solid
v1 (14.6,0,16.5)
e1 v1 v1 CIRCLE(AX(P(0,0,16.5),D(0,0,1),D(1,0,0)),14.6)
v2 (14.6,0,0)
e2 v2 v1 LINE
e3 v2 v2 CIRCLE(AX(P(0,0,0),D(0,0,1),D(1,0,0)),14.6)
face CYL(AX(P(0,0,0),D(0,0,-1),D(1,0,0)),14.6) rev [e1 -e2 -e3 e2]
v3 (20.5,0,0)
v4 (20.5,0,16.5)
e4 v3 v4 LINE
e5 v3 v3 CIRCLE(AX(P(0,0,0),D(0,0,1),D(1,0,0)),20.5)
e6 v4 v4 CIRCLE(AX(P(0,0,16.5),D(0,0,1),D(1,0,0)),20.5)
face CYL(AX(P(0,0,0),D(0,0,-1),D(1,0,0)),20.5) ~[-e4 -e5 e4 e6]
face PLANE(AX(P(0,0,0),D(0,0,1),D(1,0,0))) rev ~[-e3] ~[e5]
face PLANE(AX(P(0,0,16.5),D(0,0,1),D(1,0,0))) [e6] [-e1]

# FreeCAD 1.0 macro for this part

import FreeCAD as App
import Part
import Sketcher

V = App.Vector
Q = App.Units.Quantity

doc = App.newDocument("Part")
body = doc.addObject("PartDesign::Body", "Body")

sketch1 = doc.addObject("Sketcher::SketchObject", "Sketch")
body.addObject(sketch1)
sketch1.AttachmentSupport = (doc.XY_Plane, [""])
sketch1.MapMode = "FlatFace"
sketch1.addGeometry(Part.Circle(V(0, 0, 0), V(0, 0, 1), 20.5), False)
sketch1.addGeometry(Part.Circle(V(0, 0, 0), V(0, 0, 1), 14.6), False)
sketch1.addConstraint(Sketcher.Constraint("Coincident", 0, 3, -1, 1))
sketch1.addConstraint(Sketcher.Constraint("Coincident", 1, 3, -1, 1))
sketch1.addConstraint(Sketcher.Constraint("Diameter", 0, Q("41 mm")))
sketch1.addConstraint(Sketcher.Constraint("Diameter", 1, Q("29.2 mm")))
pad1 = doc.addObject("PartDesign::Pad", "Pad")
body.addObject(pad1)
pad1.Profile = sketch1
pad1.Length = 16.5

doc.recompute()
